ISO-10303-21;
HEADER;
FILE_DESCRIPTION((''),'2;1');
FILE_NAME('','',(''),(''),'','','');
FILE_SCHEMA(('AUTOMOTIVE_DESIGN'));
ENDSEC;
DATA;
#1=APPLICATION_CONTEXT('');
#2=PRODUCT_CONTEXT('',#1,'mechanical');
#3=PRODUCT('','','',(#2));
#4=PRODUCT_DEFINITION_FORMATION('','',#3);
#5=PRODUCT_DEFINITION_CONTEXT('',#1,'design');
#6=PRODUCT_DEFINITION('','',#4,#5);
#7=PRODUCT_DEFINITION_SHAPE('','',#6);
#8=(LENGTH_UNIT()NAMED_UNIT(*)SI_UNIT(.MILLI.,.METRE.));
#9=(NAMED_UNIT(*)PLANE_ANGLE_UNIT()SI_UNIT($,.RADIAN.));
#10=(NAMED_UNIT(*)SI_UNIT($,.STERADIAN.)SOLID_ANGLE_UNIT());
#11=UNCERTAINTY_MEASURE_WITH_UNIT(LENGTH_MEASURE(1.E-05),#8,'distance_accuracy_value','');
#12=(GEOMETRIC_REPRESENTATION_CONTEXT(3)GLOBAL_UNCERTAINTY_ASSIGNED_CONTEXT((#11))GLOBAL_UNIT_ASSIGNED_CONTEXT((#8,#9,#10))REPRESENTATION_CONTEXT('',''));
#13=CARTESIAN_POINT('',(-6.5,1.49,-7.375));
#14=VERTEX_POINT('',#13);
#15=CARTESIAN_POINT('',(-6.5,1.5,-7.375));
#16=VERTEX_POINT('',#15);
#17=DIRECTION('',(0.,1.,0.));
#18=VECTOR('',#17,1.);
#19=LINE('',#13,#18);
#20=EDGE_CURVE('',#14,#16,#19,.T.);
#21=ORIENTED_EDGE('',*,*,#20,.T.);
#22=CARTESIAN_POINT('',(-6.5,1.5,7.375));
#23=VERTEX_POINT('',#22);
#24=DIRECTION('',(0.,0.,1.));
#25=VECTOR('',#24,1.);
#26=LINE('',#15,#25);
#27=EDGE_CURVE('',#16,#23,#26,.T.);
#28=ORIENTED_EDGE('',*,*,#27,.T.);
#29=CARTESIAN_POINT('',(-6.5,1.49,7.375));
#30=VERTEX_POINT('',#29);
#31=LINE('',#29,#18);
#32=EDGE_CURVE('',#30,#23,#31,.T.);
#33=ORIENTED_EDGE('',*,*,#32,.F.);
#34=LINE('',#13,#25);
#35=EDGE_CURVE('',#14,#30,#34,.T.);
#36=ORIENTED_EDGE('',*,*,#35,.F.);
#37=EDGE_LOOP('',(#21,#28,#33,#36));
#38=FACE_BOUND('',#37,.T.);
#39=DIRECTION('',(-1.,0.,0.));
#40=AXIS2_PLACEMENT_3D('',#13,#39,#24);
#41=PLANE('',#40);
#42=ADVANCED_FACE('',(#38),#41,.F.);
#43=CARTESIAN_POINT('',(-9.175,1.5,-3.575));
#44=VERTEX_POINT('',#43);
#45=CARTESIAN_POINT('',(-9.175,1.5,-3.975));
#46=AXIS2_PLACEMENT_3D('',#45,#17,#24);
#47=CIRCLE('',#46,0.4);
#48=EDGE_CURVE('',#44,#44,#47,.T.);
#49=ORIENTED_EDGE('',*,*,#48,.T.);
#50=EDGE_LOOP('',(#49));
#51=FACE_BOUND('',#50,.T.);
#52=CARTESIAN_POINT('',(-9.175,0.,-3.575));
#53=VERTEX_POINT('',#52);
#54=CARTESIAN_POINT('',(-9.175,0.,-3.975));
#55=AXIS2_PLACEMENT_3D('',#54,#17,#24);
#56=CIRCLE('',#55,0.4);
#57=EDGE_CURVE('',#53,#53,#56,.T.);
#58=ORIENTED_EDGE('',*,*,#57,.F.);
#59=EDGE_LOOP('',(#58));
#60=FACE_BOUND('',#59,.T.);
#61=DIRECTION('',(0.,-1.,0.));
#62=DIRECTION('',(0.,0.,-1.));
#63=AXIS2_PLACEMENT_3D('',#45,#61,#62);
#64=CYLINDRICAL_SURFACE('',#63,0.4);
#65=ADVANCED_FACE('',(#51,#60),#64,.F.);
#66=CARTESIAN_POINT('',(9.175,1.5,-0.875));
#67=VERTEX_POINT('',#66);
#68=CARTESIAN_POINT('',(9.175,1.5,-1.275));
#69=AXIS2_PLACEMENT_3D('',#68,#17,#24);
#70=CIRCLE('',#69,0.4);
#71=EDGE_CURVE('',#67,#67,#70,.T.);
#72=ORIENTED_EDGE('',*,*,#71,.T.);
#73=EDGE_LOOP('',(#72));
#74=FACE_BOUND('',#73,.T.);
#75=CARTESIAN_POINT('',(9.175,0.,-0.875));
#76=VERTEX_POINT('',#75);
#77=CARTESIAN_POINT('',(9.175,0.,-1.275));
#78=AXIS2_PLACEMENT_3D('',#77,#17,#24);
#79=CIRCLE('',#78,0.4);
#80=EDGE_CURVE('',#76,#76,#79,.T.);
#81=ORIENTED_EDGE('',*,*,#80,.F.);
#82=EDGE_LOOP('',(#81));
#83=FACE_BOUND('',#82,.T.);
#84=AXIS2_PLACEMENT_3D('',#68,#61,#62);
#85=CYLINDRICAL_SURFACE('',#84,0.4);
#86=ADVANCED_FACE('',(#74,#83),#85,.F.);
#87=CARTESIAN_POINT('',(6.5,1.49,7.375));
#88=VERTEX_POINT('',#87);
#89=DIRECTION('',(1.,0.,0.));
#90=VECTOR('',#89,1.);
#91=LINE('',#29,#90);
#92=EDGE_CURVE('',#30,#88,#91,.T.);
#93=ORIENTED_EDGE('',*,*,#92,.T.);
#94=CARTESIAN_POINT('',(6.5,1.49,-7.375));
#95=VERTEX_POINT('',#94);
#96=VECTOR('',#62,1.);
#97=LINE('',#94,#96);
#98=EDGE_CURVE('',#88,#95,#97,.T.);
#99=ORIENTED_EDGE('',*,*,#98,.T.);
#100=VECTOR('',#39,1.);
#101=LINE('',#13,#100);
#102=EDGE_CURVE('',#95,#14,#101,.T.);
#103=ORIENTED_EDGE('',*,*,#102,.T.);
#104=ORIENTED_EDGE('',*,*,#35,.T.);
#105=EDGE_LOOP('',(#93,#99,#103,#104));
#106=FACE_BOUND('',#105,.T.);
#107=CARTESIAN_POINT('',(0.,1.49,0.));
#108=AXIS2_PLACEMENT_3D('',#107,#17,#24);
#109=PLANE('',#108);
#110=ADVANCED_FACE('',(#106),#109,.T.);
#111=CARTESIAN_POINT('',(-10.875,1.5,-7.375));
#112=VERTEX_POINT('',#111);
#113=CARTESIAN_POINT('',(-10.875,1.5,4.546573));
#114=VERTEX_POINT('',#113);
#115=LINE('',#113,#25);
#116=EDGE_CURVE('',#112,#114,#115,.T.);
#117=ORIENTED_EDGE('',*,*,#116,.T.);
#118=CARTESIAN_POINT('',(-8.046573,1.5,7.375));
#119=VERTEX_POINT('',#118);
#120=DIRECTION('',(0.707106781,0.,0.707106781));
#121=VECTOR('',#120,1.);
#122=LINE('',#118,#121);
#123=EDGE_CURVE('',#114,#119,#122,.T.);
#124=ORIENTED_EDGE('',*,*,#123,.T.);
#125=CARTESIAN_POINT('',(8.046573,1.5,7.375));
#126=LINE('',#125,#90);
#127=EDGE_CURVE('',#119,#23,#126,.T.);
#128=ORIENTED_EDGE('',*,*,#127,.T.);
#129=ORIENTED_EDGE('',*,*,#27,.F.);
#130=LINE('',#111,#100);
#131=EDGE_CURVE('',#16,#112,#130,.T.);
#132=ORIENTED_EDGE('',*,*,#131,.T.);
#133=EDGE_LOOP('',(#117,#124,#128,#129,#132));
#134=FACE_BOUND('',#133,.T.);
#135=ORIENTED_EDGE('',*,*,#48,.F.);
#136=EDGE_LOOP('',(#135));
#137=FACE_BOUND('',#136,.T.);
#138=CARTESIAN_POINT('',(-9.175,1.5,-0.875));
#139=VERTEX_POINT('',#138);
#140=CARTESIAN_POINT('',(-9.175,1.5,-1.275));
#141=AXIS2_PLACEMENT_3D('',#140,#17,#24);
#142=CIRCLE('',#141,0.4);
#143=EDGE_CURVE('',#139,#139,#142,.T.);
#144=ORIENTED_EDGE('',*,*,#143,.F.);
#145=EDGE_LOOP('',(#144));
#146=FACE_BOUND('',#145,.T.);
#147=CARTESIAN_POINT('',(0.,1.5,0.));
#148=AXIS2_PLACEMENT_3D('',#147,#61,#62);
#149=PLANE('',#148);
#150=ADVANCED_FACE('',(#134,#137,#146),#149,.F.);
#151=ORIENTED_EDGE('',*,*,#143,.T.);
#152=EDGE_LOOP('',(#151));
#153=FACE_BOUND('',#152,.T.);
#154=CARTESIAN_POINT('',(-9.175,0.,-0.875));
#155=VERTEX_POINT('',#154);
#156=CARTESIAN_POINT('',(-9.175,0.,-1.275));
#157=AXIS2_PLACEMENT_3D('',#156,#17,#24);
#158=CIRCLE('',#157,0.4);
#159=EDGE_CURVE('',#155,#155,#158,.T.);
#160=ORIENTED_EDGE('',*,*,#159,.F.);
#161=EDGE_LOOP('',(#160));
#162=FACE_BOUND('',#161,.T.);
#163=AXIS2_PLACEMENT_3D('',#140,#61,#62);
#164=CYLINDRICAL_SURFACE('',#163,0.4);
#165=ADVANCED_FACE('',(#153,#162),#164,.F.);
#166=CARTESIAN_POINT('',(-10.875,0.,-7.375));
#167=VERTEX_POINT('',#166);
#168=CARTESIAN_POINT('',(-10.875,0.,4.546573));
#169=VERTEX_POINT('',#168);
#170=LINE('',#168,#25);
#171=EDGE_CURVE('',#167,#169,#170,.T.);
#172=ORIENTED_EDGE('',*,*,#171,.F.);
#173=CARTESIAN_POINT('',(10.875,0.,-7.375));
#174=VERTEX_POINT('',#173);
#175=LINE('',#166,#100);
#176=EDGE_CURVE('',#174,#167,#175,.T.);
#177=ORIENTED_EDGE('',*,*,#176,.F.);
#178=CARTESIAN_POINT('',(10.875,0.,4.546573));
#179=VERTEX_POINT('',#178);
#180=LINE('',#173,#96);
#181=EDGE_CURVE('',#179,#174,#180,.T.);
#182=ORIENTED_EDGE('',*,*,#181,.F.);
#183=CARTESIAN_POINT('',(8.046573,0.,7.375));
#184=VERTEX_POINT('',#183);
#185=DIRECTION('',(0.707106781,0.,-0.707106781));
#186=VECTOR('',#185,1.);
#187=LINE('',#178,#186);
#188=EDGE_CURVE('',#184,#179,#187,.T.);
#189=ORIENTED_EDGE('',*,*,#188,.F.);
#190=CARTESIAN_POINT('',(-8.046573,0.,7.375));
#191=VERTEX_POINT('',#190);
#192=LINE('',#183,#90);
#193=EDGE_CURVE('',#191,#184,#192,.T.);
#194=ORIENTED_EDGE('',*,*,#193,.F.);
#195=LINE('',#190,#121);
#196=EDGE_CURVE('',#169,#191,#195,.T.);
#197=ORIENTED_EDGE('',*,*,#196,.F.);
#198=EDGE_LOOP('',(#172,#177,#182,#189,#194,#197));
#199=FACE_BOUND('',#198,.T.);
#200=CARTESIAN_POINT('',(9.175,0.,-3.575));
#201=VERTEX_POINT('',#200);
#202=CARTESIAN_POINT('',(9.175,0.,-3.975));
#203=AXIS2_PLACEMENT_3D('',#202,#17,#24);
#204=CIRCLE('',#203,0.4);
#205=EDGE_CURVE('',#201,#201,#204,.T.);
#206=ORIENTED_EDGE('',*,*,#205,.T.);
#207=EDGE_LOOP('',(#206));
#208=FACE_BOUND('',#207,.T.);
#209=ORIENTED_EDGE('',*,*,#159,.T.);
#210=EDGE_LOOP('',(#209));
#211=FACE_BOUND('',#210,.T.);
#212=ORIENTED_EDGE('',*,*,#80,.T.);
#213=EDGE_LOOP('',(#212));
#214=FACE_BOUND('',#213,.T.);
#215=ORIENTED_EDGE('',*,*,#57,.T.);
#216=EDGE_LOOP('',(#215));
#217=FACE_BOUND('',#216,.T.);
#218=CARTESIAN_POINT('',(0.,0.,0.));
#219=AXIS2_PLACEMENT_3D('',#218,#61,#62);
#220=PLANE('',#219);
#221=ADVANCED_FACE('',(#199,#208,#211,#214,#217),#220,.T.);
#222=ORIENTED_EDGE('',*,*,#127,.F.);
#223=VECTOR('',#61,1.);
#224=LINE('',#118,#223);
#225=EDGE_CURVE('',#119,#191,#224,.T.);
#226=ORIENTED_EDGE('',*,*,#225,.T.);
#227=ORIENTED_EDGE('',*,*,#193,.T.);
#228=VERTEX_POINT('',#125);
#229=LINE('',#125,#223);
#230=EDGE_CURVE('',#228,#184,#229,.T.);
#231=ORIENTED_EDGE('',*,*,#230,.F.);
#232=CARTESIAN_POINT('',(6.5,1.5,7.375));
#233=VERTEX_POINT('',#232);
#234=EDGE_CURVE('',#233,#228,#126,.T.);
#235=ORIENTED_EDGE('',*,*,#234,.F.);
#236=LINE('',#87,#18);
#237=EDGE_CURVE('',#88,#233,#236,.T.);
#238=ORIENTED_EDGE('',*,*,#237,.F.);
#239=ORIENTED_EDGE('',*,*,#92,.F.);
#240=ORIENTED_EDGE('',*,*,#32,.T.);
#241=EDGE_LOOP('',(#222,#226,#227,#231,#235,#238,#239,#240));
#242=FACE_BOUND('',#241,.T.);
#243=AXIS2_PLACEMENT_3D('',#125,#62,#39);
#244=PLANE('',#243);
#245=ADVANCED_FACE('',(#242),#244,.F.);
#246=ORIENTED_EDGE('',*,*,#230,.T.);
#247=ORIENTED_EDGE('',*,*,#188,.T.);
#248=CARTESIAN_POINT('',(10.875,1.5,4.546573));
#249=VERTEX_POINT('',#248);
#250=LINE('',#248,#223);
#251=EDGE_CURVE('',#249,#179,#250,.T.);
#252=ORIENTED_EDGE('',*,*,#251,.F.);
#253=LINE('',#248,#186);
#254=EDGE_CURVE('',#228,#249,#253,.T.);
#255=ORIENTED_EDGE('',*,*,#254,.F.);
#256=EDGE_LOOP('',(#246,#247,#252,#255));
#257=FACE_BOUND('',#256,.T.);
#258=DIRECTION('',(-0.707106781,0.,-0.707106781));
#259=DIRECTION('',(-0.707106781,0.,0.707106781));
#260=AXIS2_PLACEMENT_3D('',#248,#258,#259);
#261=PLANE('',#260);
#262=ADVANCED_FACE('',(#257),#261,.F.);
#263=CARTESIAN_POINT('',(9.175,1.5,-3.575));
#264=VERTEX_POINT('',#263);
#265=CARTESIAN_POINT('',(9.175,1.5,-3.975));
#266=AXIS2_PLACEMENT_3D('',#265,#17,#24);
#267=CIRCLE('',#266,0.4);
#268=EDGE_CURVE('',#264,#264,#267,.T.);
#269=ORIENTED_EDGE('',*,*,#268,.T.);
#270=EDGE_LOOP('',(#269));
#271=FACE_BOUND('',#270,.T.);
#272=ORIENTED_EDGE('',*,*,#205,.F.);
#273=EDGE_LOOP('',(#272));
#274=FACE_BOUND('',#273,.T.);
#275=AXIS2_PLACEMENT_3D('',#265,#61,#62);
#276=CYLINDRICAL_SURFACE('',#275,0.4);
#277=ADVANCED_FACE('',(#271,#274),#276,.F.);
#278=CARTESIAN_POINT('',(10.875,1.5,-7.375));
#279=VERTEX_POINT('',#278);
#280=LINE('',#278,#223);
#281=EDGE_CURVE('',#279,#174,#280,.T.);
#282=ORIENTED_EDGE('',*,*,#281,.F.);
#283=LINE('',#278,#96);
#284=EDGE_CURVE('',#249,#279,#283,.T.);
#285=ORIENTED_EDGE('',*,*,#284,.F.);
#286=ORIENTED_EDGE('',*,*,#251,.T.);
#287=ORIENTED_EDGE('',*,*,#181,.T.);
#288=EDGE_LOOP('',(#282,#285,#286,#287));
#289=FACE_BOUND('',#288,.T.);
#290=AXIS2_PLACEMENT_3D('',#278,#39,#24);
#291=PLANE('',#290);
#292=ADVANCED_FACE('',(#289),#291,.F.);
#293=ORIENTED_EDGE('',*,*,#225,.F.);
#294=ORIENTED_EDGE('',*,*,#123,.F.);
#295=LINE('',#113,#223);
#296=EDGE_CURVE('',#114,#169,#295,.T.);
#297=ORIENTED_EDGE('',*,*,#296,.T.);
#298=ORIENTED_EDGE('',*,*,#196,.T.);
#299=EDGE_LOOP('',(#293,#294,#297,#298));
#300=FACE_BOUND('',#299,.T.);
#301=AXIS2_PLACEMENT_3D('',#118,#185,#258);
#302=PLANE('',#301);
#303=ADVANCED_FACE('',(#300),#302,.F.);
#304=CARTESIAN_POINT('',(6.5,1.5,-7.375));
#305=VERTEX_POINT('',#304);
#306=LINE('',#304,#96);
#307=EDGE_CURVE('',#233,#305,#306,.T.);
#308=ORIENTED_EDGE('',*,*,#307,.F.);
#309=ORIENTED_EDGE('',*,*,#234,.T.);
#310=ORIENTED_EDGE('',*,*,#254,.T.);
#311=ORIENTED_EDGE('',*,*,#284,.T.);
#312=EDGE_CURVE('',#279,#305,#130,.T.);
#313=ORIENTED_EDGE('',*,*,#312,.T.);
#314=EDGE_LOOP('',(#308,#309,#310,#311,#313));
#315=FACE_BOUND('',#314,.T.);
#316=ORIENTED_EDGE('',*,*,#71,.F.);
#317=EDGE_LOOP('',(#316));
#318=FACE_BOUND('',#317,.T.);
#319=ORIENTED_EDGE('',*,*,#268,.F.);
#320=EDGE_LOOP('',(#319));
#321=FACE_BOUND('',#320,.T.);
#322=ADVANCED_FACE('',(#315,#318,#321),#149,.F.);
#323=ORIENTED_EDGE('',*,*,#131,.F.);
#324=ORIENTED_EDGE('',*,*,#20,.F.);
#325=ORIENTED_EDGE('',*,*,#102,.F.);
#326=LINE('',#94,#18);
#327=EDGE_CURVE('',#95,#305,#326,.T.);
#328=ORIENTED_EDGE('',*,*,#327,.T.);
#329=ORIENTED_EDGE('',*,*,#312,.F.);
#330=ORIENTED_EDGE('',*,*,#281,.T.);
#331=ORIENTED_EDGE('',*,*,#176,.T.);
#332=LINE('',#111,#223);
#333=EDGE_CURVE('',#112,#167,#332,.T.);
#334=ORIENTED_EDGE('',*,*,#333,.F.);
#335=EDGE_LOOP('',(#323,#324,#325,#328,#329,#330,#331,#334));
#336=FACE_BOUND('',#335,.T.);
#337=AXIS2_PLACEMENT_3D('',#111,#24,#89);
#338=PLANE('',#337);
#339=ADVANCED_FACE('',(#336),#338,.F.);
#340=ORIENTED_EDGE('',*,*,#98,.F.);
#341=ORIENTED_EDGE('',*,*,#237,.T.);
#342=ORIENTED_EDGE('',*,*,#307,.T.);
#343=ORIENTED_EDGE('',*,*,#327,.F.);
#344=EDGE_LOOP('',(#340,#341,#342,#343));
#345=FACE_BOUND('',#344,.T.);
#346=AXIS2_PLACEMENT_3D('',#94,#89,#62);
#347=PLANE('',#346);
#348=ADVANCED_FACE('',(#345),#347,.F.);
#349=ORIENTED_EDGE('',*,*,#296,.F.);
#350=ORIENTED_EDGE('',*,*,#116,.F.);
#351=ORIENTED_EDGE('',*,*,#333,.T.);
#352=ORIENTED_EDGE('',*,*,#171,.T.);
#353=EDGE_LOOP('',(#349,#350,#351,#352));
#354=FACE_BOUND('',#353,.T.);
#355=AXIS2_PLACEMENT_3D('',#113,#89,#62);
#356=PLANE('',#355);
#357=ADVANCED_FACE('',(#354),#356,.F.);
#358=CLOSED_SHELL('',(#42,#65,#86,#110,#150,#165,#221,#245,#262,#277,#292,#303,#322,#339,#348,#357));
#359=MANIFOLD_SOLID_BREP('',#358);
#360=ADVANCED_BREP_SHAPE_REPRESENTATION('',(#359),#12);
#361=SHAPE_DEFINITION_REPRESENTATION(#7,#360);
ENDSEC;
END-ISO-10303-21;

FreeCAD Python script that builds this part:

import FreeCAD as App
import Part
import Sketcher
from FreeCAD import Vector


def add_polygon(sketch, points):
    """Adds a closed chain of lines whose ends are joined by coincident constraints."""
    first, n = sketch.GeometryCount, len(points)
    for a, b in zip(points, points[1:] + points[:1]):
        sketch.addGeometry(Part.LineSegment(App.Vector(*a, 0), App.Vector(*b, 0)), False)
    for i in range(n):
        sketch.addConstraint(Sketcher.Constraint("Coincident", first + i, 2, first + (i + 1) % n, 1))

doc = App.newDocument("Part")
params = doc.addObject("Spreadsheet::Sheet", "Params")
for row, (alias, value) in enumerate([
    ("sketch1_diameter", "0.8 mm"),
    ("sketch1_length", "4 mm"),
    ("sketch1_width", "21.75 mm"),
    ("pad1_length", "1.5 mm"),
    ("sketch2_width", "13 mm"),
    ("sketch2_height", "14.75 mm"),
    ("pocket1_length", "0.01 mm"),
], start=1):
    params.set(f"A{row}", alias)
    params.set(f"B{row}", "=" + value)
    params.setAlias(f"B{row}", alias)

body = doc.addObject("PartDesign::Body", "Body")

# Sketch on XZ plane
sketch1 = body.newObject("Sketcher::SketchObject", "Sketch")
sketch1.AttachmentSupport = (doc.getObject("XZ_Plane"), [""])
sketch1.MapMode = "FlatFace"
add_polygon(sketch1, [(10.88, -7.38), (-10.88, -7.38), (-10.88, 4.55), (-8.05, 7.38), (8.05, 7.38), (10.88, 4.55)])  # lines 0-5
sketch1.addGeometry(Part.Circle(Vector(9.18, -1.27, 0), Vector(0, 0, 1), 0.4), False)  # 6
sketch1.addGeometry(Part.Circle(Vector(-9.18, -1.27, 0), Vector(0, 0, 1), 0.4), False)  # 7
sketch1.addGeometry(Part.Circle(Vector(9.18, -3.98, 0), Vector(0, 0, 1), 0.4), False)  # 8
sketch1.addGeometry(Part.Circle(Vector(-9.18, -3.98, 0), Vector(0, 0, 1), 0.4), False)  # 9
sketch1.addConstraint(Sketcher.Constraint("Horizontal", 0))
sketch1.addConstraint(Sketcher.Constraint("Vertical", 1))
sketch1.addConstraint(Sketcher.Constraint("Horizontal", 3))
sketch1.addConstraint(Sketcher.Constraint("Vertical", 5))
sketch1.addConstraint(Sketcher.Constraint("Equal", 6, 7))
sketch1.addConstraint(Sketcher.Constraint("Equal", 7, 8))
sketch1.addConstraint(Sketcher.Constraint("Equal", 8, 9))
sketch1.addConstraint(Sketcher.Constraint("Symmetric", 6, 3, 7, 3, -2))
sketch1.addConstraint(Sketcher.Constraint("Symmetric", 8, 3, 9, 3, -2))
sketch1.addConstraint(Sketcher.Constraint("Symmetric", 1, 2, 4, 2, -2))
sketch1.addConstraint(Sketcher.Constraint("Perpendicular", 2, 4))
sketch1.addConstraint(Sketcher.Constraint("Vertical", 6, 3, 8, 3))
sketch1.addConstraint(Sketcher.Constraint("Equal", 2, 4))
sketch1.addConstraint(Sketcher.Constraint("Diameter", 6, 0.8))
sketch1.addConstraint(Sketcher.Constraint("Distance", 2, 4.0))
sketch1.addConstraint(Sketcher.Constraint("DistanceX", 0, 2, 0, 1, 21.75))
sketch1.addConstraint(Sketcher.Constraint("DistanceY", 8, 3, 6, 3, 2.7))
sketch1.addConstraint(Sketcher.Constraint("DistanceX", 0, 2, 9, 3, 1.7))
sketch1.addConstraint(Sketcher.Constraint("DistanceY", 0, 2, 9, 3, 3.4))
sketch1.addConstraint(Sketcher.Constraint("DistanceY", 7, 3, 2, 2, 8.65))
sketch1.addConstraint(Sketcher.Constraint("DistanceY", 6, 3, -1, 1, 1.275))
sketch1.setExpression("Constraints[19]", "Params.sketch1_diameter")
sketch1.setExpression("Constraints[20]", "Params.sketch1_length")
sketch1.setExpression("Constraints[21]", "Params.sketch1_width")
pad1 = body.newObject("PartDesign::Pad", "Pad")
pad1.Profile = sketch1
pad1.setExpression("Length", "Params.pad1_length")
pad1.Reversed = True

# Sketch on XZ plane
sketch2 = body.newObject("Sketcher::SketchObject", "Sketch001")
sketch2.AttachmentSupport = (doc.getObject("XZ_Plane"), [""])
sketch2.MapMode = "FlatFace"
sketch2.AttachmentOffset = App.Placement(Vector(0, 0, -1.5), App.Rotation())
add_polygon(sketch2, [(-6, -7), (-6, 7), (6, 7), (6, -7)])  # lines 0-3
sketch2.addConstraint(Sketcher.Constraint("Vertical", 0))
sketch2.addConstraint(Sketcher.Constraint("Horizontal", 1))
sketch2.addConstraint(Sketcher.Constraint("Vertical", 2))
sketch2.addConstraint(Sketcher.Constraint("Horizontal", 3))
sketch2.addConstraint(Sketcher.Constraint("Symmetric", 0, 2, 2, 2, -1, 1))
sketch2.addConstraint(Sketcher.Constraint("DistanceX", 1, 1, 1, 2, 13.0))
sketch2.addConstraint(Sketcher.Constraint("DistanceY", 0, 1, 0, 2, 14.75))
sketch2.setExpression("Constraints[9]", "Params.sketch2_width")
sketch2.setExpression("Constraints[10]", "Params.sketch2_height")
pocket1 = body.newObject("PartDesign::Pocket", "Pocket")
pocket1.Profile = sketch2
pocket1.setExpression("Length", "Params.pocket1_length")
pocket1.Reversed = True

doc.recompute()
